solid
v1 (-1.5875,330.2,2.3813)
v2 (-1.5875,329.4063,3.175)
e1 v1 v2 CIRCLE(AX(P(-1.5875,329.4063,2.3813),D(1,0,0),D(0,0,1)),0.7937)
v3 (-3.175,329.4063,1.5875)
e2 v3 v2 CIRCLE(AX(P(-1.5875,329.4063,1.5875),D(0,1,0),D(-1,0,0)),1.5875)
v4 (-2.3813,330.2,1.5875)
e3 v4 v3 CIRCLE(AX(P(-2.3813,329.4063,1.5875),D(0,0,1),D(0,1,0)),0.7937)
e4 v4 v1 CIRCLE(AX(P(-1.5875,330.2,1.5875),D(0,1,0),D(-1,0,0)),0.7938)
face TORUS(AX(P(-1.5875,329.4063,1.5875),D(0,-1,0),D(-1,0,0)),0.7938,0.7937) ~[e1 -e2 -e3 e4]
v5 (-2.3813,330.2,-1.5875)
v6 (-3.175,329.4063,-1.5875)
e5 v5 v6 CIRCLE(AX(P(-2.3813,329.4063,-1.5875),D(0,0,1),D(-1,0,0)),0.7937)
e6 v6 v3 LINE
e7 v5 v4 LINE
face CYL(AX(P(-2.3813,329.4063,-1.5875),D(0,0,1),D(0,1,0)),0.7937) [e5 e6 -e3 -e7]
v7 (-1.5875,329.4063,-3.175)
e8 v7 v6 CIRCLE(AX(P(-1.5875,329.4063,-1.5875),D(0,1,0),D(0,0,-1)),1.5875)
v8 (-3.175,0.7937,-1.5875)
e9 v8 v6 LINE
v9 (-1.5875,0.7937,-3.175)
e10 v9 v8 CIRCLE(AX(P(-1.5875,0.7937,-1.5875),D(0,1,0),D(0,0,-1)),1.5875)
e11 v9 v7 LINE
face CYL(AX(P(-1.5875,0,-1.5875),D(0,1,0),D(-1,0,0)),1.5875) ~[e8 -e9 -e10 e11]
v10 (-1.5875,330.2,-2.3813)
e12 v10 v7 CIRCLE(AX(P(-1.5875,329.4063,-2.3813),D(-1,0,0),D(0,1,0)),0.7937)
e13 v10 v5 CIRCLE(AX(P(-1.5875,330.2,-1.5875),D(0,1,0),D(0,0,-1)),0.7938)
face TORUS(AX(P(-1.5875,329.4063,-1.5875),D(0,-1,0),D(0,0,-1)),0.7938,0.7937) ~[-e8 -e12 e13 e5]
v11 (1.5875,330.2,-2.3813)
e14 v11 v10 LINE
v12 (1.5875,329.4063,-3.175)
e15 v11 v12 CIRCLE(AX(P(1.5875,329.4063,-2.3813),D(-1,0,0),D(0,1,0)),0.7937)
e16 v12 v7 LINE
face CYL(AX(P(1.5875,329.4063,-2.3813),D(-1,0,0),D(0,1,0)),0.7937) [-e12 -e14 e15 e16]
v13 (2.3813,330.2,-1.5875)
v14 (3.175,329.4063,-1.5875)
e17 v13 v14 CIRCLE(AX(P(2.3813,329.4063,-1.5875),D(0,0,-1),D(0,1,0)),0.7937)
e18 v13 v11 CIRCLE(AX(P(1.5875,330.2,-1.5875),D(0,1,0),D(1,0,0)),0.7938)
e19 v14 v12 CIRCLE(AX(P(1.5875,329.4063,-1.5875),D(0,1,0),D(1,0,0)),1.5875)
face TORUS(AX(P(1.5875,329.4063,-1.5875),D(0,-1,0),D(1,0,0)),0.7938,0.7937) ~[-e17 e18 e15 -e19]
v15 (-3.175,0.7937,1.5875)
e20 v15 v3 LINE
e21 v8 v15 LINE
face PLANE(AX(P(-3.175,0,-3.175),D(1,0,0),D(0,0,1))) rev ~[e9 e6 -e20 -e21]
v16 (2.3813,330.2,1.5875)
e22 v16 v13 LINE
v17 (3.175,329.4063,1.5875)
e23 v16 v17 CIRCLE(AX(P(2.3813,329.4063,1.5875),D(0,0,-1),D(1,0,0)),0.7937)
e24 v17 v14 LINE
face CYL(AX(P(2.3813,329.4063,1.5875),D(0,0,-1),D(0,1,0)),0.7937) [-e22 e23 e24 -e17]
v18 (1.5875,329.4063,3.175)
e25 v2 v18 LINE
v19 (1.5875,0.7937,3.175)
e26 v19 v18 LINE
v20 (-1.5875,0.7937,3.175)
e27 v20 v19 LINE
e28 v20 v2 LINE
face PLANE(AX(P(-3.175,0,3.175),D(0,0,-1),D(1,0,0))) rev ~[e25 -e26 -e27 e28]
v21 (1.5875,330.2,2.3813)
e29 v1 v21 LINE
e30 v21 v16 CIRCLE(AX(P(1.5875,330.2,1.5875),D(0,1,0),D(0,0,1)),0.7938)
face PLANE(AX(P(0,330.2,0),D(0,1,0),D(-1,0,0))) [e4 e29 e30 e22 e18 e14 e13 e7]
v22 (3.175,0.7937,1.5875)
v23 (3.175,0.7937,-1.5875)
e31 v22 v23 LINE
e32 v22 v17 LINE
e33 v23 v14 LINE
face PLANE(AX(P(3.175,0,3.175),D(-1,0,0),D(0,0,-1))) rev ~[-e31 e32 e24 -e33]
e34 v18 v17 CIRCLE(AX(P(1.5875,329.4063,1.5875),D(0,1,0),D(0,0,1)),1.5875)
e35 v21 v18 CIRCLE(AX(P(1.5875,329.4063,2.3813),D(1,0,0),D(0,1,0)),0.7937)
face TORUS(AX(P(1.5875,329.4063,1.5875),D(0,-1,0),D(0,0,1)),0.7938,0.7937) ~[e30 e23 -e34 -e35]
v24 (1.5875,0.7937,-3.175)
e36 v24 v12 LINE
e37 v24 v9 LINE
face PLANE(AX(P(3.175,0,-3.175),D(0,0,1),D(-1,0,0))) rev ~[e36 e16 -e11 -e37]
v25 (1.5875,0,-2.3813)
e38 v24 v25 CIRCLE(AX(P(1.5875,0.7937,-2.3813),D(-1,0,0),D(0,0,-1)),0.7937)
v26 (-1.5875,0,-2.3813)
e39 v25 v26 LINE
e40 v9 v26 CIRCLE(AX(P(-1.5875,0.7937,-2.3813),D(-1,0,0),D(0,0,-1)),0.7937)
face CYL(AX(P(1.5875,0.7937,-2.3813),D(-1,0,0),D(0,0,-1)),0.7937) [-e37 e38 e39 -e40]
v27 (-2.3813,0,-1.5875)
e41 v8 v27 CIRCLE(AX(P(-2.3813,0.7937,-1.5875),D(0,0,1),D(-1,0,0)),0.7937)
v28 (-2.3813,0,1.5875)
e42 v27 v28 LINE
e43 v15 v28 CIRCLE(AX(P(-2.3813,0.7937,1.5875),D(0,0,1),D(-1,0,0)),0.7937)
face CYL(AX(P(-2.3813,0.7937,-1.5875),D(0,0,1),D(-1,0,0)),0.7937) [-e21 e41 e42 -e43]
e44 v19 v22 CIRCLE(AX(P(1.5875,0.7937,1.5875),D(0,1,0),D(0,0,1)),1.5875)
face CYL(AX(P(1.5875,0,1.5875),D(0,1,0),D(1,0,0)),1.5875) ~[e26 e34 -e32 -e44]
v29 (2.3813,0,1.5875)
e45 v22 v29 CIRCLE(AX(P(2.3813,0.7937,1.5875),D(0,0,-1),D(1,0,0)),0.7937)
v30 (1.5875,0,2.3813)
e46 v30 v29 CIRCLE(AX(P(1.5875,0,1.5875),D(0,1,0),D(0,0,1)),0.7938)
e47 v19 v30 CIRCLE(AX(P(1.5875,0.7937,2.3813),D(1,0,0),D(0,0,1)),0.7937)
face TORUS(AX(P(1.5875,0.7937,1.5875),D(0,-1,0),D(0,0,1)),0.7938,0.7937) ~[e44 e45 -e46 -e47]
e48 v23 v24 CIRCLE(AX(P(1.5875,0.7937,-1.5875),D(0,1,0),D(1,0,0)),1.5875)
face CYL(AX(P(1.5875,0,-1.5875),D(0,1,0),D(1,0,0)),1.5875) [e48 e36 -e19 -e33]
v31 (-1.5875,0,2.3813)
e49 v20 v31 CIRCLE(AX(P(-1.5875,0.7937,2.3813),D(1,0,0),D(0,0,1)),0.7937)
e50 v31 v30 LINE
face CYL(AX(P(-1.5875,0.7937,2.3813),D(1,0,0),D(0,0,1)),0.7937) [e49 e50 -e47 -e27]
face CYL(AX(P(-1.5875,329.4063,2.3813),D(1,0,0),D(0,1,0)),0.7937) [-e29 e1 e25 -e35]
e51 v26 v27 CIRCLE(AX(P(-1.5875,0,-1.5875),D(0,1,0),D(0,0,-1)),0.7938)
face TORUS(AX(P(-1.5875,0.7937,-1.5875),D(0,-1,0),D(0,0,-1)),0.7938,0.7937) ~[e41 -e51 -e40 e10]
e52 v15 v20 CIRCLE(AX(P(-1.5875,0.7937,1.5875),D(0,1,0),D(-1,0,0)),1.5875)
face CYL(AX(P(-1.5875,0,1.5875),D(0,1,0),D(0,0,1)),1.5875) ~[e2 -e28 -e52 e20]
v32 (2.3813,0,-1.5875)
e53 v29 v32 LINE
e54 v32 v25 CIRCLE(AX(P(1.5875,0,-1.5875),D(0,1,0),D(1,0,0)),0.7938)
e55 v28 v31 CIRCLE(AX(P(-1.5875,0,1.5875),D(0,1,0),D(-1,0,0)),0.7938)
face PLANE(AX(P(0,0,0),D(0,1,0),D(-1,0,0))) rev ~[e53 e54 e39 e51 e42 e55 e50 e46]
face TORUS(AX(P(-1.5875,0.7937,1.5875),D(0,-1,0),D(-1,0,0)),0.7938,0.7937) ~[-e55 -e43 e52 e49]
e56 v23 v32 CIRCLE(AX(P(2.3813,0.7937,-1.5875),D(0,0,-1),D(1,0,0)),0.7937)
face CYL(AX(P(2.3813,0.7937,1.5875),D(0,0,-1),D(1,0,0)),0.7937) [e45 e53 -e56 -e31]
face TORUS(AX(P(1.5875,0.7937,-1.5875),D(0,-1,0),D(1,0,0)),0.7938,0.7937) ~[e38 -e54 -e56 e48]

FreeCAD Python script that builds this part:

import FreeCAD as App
import Part
import Sketcher
Q = App.Units.Quantity


def edges_at(feature, points):
    """Names of the edges that pass closest to the given points."""
    edges = feature.Shape.Edges
    near = lambda p: min(range(len(edges)), key=lambda i: edges[i].distToShape(Part.Vertex(*p))[0])
    return sorted({f"Edge{near(p) + 1}" for p in points})


def add_polygon(sketch, points):
    """Adds a closed chain of lines whose ends are joined by coincident constraints."""
    first, n = sketch.GeometryCount, len(points)
    for a, b in zip(points, points[1:] + points[:1]):
        sketch.addGeometry(Part.LineSegment(App.Vector(*a, 0), App.Vector(*b, 0)), False)
    for i in range(n):
        sketch.addConstraint(Sketcher.Constraint("Coincident", first + i, 2, first + (i + 1) % n, 1))

doc = App.newDocument("Part")
body = doc.addObject("PartDesign::Body", "Body")

# Sketch on XZ plane
sketch1 = body.newObject("Sketcher::SketchObject", "Sketch")
sketch1.AttachmentSupport = (doc.getObject("XZ_Plane"), [""])
sketch1.MapMode = "FlatFace"
add_polygon(sketch1, [(3.175, 3.175), (3.175, -3.175), (-3.175, -3.175), (-3.175, 3.175)])  # lines 0-3
sketch1.addConstraint(Sketcher.Constraint("Vertical", 0))
sketch1.addConstraint(Sketcher.Constraint("Horizontal", 1))
sketch1.addConstraint(Sketcher.Constraint("Vertical", 2))
sketch1.addConstraint(Sketcher.Constraint("Horizontal", 3))
sketch1.addConstraint(Sketcher.Constraint("Symmetric", 0, 2, 2, 2, -1, 1))
sketch1.addConstraint(Sketcher.Constraint("Equal", 3, 0))
sketch1.addConstraint(Sketcher.Constraint("DistanceX", 1, 2, 1, 1, Q("0.25 in")))
pad1 = body.newObject("PartDesign::Pad", "Pad")
pad1.Profile = sketch1
pad1.Length = Q("13 in")
pad1.Reversed = True
doc.recompute()

fillet = body.newObject("PartDesign::Fillet", "Fillet")
fillet.Base = (pad1, edges_at(pad1, [
    (-3.175, 165.1, -3.175),
    (3.175, 165.1, -3.175),
    (3.175, 165.1, 3.175),
    (-3.175, 165.1, 3.175),
]))
fillet.Radius = Q("0.0625 in")
doc.recompute()

fillet2 = body.newObject("PartDesign::Fillet", "Fillet001")
fillet2.Base = (fillet, edges_at(fillet, [
    (3.175, 0, 0),
    (2.71, 0, -2.71),
    (0, 0, -3.175),
    (-2.71, 0, -2.71),
    (-3.175, 0, 0),
    (-2.71, 0, 2.71),
    (0, 0, 3.175),
    (2.71, 0, 2.71),
    (0, 330.2, -3.175),
    (2.71, 330.2, -2.71),
    (3.175, 330.2, 0),
    (2.71, 330.2, 2.71),
    (0, 330.2, 3.175),
    (-2.71, 330.2, 2.71),
    (-3.175, 330.2, 0),
    (-2.71, 330.2, -2.71),
]))
fillet2.Radius = Q("0.031248 in")

doc.recompute()
